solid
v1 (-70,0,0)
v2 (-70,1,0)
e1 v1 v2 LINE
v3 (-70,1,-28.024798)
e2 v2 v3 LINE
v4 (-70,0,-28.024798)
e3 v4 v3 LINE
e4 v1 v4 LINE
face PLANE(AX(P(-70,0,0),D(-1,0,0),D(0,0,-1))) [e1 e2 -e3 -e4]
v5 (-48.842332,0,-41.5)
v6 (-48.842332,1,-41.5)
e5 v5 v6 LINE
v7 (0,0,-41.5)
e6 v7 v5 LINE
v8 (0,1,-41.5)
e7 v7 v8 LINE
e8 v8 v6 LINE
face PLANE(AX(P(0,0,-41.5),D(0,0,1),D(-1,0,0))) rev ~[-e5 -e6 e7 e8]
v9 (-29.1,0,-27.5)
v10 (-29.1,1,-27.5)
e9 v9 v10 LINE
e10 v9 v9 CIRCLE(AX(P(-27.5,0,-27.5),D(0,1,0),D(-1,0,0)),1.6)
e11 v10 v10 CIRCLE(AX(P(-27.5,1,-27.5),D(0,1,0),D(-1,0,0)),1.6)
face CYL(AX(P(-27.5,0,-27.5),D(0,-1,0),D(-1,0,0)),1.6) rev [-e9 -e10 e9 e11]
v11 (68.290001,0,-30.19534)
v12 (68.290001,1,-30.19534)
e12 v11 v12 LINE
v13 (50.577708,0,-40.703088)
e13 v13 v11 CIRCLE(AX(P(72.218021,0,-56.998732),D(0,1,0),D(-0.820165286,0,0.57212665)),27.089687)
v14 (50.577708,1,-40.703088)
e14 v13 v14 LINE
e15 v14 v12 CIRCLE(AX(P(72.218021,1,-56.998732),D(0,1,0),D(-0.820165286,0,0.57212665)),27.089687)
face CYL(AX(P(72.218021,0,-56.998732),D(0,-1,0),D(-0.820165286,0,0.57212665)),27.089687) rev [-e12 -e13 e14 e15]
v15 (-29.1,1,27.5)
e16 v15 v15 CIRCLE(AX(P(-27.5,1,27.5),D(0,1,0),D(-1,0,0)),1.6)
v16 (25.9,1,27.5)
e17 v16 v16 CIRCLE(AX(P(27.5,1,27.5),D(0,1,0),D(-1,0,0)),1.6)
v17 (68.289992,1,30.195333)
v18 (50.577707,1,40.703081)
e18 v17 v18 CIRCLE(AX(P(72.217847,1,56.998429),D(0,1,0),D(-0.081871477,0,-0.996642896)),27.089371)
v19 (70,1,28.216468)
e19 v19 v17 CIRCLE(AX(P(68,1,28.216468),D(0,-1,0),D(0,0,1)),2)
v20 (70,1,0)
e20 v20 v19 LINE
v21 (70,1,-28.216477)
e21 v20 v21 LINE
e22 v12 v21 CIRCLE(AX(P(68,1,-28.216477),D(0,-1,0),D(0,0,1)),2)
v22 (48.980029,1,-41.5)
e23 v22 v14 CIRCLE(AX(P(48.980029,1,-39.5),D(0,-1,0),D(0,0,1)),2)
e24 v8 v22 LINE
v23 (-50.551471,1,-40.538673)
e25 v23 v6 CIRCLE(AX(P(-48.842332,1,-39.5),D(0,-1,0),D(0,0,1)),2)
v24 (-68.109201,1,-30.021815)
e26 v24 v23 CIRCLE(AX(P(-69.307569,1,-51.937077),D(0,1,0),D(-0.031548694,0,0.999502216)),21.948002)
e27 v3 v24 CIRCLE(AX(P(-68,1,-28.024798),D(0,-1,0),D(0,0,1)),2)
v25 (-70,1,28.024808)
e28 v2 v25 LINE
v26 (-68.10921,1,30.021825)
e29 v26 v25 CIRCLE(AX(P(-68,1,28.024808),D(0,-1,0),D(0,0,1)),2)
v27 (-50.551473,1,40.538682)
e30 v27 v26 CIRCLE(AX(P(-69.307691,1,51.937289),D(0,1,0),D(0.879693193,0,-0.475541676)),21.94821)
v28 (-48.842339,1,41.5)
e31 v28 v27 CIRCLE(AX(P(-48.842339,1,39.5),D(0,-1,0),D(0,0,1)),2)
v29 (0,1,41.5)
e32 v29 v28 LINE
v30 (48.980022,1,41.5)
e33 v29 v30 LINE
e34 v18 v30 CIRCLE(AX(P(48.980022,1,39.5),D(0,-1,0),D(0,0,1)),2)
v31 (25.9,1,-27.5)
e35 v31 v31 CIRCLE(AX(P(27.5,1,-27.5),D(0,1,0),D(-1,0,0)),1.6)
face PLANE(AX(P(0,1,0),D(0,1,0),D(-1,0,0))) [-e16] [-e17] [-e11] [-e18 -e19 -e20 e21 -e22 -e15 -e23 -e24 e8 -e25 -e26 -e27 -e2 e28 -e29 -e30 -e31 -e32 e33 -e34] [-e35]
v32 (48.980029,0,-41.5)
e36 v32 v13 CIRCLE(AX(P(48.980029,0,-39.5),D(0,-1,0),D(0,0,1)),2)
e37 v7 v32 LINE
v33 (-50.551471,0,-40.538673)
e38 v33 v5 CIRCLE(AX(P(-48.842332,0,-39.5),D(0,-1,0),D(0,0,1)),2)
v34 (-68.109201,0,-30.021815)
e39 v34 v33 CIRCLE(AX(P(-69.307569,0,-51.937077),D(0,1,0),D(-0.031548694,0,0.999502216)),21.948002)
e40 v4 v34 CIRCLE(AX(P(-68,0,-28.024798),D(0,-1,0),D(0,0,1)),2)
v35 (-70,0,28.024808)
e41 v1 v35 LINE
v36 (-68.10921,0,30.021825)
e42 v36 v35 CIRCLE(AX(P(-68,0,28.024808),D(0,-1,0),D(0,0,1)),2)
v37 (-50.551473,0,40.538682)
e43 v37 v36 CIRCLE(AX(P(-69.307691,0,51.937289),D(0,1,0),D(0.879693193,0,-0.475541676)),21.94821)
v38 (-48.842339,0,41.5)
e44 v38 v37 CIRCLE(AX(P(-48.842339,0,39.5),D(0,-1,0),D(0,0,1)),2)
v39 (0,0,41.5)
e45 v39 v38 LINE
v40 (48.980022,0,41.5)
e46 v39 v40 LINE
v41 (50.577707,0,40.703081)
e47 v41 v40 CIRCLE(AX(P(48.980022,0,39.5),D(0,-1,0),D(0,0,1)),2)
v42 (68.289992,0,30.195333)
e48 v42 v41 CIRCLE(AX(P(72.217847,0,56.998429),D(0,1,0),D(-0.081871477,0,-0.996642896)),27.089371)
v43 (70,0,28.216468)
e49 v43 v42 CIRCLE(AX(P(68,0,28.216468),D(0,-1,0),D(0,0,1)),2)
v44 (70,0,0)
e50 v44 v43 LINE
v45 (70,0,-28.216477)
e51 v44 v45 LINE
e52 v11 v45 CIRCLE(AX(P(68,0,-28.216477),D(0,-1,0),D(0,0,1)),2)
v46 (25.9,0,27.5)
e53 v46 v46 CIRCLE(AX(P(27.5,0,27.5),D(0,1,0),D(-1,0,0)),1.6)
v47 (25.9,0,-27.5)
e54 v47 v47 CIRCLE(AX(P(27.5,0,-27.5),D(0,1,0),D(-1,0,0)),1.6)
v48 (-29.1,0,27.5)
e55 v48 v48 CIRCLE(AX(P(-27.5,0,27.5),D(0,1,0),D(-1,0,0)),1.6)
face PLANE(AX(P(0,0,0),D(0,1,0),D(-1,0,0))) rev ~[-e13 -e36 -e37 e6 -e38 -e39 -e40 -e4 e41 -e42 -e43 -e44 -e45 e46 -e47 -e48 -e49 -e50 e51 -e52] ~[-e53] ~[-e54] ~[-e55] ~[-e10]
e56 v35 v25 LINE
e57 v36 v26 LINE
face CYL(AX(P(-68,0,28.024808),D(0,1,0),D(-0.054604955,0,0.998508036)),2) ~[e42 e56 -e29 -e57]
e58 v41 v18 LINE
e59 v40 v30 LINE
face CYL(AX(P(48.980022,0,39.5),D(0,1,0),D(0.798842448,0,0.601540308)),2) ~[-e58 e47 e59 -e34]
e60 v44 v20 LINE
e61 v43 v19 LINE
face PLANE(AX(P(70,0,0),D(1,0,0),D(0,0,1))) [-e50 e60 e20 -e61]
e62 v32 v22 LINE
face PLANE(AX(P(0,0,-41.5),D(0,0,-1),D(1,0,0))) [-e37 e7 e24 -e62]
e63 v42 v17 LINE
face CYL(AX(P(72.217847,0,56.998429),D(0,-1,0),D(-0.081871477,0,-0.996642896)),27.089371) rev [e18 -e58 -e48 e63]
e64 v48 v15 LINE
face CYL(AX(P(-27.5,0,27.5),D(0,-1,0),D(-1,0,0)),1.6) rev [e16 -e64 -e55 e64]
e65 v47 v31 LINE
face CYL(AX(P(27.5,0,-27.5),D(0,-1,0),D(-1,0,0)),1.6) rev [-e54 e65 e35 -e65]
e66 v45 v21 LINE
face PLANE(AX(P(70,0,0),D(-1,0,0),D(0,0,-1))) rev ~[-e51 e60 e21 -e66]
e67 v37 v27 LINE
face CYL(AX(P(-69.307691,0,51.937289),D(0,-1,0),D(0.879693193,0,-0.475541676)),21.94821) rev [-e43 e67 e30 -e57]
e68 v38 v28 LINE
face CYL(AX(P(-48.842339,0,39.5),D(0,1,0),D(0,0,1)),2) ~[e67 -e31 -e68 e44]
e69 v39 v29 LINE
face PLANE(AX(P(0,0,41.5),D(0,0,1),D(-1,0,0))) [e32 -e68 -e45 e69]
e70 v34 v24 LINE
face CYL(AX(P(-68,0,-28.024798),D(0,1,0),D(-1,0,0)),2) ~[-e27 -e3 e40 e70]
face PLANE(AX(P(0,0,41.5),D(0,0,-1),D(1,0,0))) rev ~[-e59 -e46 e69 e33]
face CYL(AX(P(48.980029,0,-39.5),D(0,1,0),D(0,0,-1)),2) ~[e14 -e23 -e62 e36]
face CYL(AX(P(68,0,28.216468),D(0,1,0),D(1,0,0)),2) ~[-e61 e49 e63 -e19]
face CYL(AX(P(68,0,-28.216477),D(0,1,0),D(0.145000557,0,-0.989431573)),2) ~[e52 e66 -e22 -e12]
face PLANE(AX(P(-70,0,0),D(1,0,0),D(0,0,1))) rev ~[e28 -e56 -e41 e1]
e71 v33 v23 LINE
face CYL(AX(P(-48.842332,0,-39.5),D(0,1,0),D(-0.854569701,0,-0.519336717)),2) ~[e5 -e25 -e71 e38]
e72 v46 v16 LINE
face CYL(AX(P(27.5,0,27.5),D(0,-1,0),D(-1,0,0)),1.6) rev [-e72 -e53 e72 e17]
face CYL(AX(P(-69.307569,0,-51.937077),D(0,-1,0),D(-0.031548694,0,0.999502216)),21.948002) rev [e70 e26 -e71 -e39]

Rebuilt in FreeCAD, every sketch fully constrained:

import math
import FreeCAD as App
import Part
import Sketcher
Q = App.Units.Quantity


def edges_at(feature, points):
    """Names of the edges that pass closest to the given points."""
    edges = feature.Shape.Edges
    near = lambda p: min(range(len(edges)), key=lambda i: edges[i].distToShape(Part.Vertex(*p))[0])
    return sorted({f"Edge{near(p) + 1}" for p in points})

doc = App.newDocument("Part")
body = doc.addObject("PartDesign::Body", "Body")

sketch1 = body.newObject("Sketcher::SketchObject", "Sketch")
sketch1.AttachmentSupport = (doc.getObject("XZ_Plane"), [""])
sketch1.MapMode = "FlatFace"
sketch1.addGeometry([
    Part.LineSegment(App.Vector(50, -41.5, 0), App.Vector(-50, -41.5, 0)),
    Part.ArcOfCircle(Part.Circle(App.Vector(-69.3, -51.9, 0), App.Vector(0, 0, 1), 21.9), math.radians(28), math.radians(92)),
    Part.LineSegment(App.Vector(-70, -30, 0), App.Vector(-70, 30, 0)),
    Part.ArcOfCircle(Part.Circle(App.Vector(-69.3, 51.9, 0), App.Vector(0, 0, 1), 21.9), math.radians(-92), math.radians(-28)),
    Part.LineSegment(App.Vector(-50, 41.5, 0), App.Vector(50, 41.5, 0)),
    Part.ArcOfCircle(Part.Circle(App.Vector(72.2, 57, 0), App.Vector(0, 0, 1), 27.1), math.radians(-145), math.radians(-95)),
    Part.LineSegment(App.Vector(70, 30, 0), App.Vector(70, -30, 0)),
    Part.ArcOfCircle(Part.Circle(App.Vector(72.2, -57, 0), App.Vector(0, 0, 1), 27.1), math.radians(95), math.radians(145)),
    Part.Circle(App.Vector(27.5, -27.5, 0), App.Vector(0, 0, 1), 1.6),
    Part.Circle(App.Vector(-27.5, -27.5, 0), App.Vector(0, 0, 1), 1.6),
    Part.Circle(App.Vector(27.5, 27.5, 0), App.Vector(0, 0, 1), 1.6),
    Part.Circle(App.Vector(-27.5, 27.5, 0), App.Vector(0, 0, 1), 1.6),
], False)
sketch1.addConstraint([
    Sketcher.Constraint("Coincident", 0, 2, 1, 1),
    Sketcher.Constraint("Coincident", 1, 2, 2, 1),
    Sketcher.Constraint("Coincident", 2, 2, 3, 1),
    Sketcher.Constraint("Coincident", 3, 2, 4, 1),
    Sketcher.Constraint("Coincident", 4, 2, 5, 1),
    Sketcher.Constraint("Coincident", 5, 2, 6, 1),
    Sketcher.Constraint("Coincident", 6, 2, 7, 1),
    Sketcher.Constraint("Coincident", 7, 2, 0, 1),
    Sketcher.Constraint("Horizontal", 0),
    Sketcher.Constraint("Vertical", 2),
    Sketcher.Constraint("Horizontal", 4),
    Sketcher.Constraint("Vertical", 6),
    Sketcher.Constraint("Equal", 1, 3),
    Sketcher.Constraint("Equal", 5, 7),
    Sketcher.Constraint("Equal", 8, 9),
    Sketcher.Constraint("Equal", 9, 10),
    Sketcher.Constraint("Equal", 10, 11),
    Sketcher.Constraint("Symmetric", 9, 3, 10, 3, -1, 1),
    Sketcher.Constraint("Symmetric", 8, 3, 11, 3, -1, 1),
    Sketcher.Constraint("Symmetric", 0, 2, 4, 2, -1, 1),
    Sketcher.Constraint("Symmetric", 1, 2, 5, 2, -1, 1),
    Sketcher.Constraint("Symmetric", 8, 3, 9, 3, -2),
    Sketcher.Constraint("Symmetric", 1, 3, 3, 3, -1),
    Sketcher.Constraint("Symmetric", 5, 3, 7, 3, -1),
    Sketcher.Constraint("Diameter", 8, Q("3.2 mm")),
    Sketcher.Constraint("DistanceX", 0, 2, -1, 1, Q("50 mm")),
    Sketcher.Constraint("DistanceY", 1, 2, -1, 1, Q("30 mm")),
    Sketcher.Constraint("DistanceX", 9, 3, 8, 3, Q("55 mm")),
    Sketcher.Constraint("DistanceY", 8, 3, 10, 3, Q("55 mm")),
    Sketcher.Constraint("DistanceX", 1, 2, -1, 1, Q("70 mm")),
    Sketcher.Constraint("Radius", 3, Q("21.948 mm")),
    Sketcher.Constraint("DistanceY", 0, 2, 9, 3, Q("14 mm")),
    Sketcher.Constraint("Radius", 5, Q("27.0895 mm")),
])
pad1 = body.newObject("PartDesign::Pad", "Pad")
pad1.Profile = sketch1
pad1.Length = 1
pad1.Reversed = True
doc.recompute()

fillet = body.newObject("PartDesign::Fillet", "Fillet")
fillet.Base = (pad1, edges_at(pad1, [
    (50, 0.5, 41.5),
    (70, 0.5, 30),
    (70, 0.5, -30),
    (50, 0.5, -41.5),
    (-50, 0.5, 41.5),
    (-70, 0.5, 30),
    (-70, 0.5, -30),
    (-50, 0.5, -41.5),
]))
fillet.Radius = 2

doc.recompute()
